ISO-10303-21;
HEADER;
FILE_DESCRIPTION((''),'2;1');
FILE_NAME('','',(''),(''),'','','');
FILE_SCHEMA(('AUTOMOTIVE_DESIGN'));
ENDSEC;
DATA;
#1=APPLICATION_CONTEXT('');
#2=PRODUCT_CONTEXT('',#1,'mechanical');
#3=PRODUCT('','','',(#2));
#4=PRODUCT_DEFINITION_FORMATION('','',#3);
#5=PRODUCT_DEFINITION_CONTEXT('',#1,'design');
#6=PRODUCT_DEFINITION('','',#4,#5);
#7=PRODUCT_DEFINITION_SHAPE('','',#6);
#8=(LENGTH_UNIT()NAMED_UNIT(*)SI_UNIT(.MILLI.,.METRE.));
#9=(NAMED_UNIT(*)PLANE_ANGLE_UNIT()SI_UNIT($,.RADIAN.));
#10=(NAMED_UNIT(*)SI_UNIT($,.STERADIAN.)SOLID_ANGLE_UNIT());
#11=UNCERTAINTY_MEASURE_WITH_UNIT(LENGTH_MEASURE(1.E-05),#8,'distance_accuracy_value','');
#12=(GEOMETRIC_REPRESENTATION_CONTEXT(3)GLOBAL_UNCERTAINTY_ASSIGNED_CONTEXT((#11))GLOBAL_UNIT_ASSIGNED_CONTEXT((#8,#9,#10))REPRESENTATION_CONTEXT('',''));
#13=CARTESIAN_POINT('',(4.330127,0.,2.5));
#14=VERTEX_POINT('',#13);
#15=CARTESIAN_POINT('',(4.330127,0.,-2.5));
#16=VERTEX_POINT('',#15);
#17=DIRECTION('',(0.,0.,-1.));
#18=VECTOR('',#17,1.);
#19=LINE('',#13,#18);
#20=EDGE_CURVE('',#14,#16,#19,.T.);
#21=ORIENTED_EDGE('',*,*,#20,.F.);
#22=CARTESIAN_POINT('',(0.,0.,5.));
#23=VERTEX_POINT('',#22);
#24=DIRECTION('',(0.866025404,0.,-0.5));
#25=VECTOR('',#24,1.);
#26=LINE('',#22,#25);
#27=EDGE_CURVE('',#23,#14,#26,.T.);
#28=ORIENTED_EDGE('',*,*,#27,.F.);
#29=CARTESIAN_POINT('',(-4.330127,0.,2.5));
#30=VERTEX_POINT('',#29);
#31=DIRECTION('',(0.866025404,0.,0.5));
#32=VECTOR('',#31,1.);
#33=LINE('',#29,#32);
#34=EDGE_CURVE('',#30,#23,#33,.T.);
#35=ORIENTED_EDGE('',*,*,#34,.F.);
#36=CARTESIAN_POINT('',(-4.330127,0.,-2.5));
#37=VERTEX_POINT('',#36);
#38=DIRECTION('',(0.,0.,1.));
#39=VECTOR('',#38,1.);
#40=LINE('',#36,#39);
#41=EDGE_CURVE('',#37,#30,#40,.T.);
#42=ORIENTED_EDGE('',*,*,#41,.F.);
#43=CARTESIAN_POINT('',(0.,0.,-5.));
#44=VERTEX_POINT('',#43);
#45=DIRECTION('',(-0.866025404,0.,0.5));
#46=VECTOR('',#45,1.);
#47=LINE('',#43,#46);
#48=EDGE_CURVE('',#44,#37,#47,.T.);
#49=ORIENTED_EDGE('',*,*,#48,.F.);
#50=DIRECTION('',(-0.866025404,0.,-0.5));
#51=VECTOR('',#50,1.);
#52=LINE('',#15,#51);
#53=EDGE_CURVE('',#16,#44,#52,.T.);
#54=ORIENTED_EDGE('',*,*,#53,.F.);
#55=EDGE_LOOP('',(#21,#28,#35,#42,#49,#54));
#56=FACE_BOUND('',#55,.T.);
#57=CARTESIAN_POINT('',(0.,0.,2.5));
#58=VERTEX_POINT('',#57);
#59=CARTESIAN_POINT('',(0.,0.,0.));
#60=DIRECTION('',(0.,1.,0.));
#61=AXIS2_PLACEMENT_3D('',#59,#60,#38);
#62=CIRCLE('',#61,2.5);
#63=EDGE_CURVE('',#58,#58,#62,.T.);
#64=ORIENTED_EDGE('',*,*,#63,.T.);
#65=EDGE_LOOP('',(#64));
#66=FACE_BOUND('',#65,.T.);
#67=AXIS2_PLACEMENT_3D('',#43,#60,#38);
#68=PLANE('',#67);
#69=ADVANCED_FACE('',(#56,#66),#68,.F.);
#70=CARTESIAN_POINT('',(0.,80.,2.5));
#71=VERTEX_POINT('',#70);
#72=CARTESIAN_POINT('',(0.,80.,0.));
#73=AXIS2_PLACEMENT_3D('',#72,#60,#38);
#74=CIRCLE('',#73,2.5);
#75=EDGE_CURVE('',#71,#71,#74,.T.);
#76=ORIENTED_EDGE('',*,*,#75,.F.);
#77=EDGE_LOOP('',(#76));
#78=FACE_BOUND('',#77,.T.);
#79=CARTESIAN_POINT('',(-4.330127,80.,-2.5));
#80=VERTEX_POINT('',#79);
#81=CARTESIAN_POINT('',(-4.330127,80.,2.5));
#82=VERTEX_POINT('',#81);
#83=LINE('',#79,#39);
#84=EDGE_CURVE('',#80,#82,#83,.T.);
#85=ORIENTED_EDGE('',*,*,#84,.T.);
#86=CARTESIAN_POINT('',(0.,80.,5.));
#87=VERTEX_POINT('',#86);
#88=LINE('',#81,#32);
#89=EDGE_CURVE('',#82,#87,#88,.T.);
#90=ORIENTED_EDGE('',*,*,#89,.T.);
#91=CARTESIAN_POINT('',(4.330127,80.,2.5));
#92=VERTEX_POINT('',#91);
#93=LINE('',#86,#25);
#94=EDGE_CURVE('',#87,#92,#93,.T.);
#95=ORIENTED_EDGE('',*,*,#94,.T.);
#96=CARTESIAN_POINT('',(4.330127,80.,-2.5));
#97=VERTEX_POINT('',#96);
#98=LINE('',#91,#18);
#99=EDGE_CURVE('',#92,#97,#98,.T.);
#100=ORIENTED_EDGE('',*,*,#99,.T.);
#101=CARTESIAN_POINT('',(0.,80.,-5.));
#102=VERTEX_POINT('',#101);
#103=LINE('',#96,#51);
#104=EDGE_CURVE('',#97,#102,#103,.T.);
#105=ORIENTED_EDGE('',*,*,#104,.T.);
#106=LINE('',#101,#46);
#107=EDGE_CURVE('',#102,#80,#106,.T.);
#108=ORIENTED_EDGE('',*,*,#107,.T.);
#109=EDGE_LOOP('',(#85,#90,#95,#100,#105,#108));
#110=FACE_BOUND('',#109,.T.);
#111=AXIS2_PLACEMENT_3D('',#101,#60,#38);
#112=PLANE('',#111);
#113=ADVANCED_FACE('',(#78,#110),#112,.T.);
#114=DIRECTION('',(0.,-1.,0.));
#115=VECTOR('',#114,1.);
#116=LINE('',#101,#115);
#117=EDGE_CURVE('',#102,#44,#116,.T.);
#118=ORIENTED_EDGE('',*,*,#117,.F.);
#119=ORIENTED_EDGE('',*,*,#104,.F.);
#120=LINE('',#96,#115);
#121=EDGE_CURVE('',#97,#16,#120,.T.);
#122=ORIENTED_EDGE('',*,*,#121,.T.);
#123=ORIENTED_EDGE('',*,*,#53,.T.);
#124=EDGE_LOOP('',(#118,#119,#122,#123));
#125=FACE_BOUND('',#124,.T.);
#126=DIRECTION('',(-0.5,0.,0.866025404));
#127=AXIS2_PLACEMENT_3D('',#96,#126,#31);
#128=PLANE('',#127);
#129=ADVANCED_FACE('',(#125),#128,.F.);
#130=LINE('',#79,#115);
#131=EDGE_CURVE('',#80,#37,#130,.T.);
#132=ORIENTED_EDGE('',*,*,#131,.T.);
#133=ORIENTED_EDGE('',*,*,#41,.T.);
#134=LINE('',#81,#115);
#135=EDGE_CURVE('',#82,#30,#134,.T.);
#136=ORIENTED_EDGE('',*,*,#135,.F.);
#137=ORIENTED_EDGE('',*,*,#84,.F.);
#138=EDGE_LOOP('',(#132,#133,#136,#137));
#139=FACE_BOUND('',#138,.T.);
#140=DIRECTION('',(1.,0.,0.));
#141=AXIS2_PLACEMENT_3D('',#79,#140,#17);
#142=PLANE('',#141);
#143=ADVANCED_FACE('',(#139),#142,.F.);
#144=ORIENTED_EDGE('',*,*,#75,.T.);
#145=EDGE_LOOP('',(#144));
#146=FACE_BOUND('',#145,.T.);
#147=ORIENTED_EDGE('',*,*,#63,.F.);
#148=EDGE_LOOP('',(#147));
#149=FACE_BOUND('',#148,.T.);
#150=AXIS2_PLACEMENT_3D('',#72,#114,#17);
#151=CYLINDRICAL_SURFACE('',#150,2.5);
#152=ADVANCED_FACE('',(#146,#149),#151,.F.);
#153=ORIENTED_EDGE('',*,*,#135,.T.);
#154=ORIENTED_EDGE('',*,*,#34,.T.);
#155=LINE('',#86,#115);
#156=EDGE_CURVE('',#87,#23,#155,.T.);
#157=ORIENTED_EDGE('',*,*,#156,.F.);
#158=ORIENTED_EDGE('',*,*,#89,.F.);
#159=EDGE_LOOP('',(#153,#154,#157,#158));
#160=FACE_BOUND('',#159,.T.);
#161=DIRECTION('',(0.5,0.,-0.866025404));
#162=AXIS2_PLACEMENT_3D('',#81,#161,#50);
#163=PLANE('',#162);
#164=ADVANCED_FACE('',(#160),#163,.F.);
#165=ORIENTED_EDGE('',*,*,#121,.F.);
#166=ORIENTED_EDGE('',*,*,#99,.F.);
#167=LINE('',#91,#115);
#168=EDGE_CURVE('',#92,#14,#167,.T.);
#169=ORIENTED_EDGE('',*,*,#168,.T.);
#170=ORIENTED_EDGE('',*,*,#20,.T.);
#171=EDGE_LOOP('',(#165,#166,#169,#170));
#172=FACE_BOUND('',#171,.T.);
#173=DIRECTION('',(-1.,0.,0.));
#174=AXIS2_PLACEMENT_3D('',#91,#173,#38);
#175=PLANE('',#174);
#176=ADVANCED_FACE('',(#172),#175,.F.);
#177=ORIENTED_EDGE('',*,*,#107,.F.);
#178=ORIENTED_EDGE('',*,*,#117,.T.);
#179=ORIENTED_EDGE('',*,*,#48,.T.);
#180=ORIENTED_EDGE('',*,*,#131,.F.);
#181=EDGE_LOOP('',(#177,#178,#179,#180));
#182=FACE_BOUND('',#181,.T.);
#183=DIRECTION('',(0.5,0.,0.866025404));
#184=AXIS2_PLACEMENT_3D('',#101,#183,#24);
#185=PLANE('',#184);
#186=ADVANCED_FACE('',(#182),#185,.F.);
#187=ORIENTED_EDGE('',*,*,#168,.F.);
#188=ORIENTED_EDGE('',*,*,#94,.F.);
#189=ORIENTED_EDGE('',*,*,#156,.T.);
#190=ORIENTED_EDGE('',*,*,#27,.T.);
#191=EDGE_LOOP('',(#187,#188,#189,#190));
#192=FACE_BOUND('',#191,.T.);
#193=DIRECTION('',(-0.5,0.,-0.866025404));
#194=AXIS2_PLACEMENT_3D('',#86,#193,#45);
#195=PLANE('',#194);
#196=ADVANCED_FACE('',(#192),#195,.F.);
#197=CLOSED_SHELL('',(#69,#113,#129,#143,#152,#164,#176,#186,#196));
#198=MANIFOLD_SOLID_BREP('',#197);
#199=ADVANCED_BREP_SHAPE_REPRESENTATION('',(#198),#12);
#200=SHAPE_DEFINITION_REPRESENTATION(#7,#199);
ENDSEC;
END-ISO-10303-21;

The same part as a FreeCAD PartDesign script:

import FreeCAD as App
import Part
import Sketcher
Q = App.Units.Quantity

doc = App.newDocument("Part")
body = doc.addObject("PartDesign::Body", "Body")

sketch1 = body.newObject("Sketcher::SketchObject", "Sketch")
sketch1.AttachmentSupport = (doc.getObject("XZ_Plane"), [""])
sketch1.MapMode = "FlatFace"
sketch1.addGeometry(Part.LineSegment(App.Vector(0, -5, 0), App.Vector(-4.3, -2.5, 0)), False)
sketch1.addGeometry(Part.LineSegment(App.Vector(-4.3, -2.5, 0), App.Vector(-4.3, 2.5, 0)), False)
sketch1.addGeometry(Part.LineSegment(App.Vector(-4.3, 2.5, 0), App.Vector(0, 5, 0)), False)
sketch1.addGeometry(Part.LineSegment(App.Vector(0, 5, 0), App.Vector(4.3, 2.5, 0)), False)
sketch1.addGeometry(Part.LineSegment(App.Vector(4.3, 2.5, 0), App.Vector(4.3, -2.5, 0)), False)
sketch1.addGeometry(Part.LineSegment(App.Vector(4.3, -2.5, 0), App.Vector(0, -5, 0)), False)
sketch1.addGeometry(Part.Circle(App.Vector(0, 0, 0), App.Vector(0, 0, 1), 2.5), False)
sketch1.addConstraint(Sketcher.Constraint("Coincident", 0, 2, 1, 1))
sketch1.addConstraint(Sketcher.Constraint("Coincident", 1, 2, 2, 1))
sketch1.addConstraint(Sketcher.Constraint("Coincident", 2, 2, 3, 1))
sketch1.addConstraint(Sketcher.Constraint("Coincident", 3, 2, 4, 1))
sketch1.addConstraint(Sketcher.Constraint("Coincident", 4, 2, 5, 1))
sketch1.addConstraint(Sketcher.Constraint("Coincident", 5, 2, 0, 1))
sketch1.addConstraint(Sketcher.Constraint("Vertical", 1))
sketch1.addConstraint(Sketcher.Constraint("Vertical", 4))
sketch1.addConstraint(Sketcher.Constraint("Coincident", 6, 3, -1, 1))
sketch1.addConstraint(Sketcher.Constraint("Symmetric", 0, 2, 3, 2, -1, 1))
sketch1.addConstraint(Sketcher.Constraint("Symmetric", 2, 2, 5, 2, -1, 1))
sketch1.addConstraint(Sketcher.Constraint("PointOnObject", 2, 2, -2))
sketch1.addConstraint(Sketcher.Constraint("Parallel", 2, 5))
sketch1.addConstraint(Sketcher.Constraint("Horizontal", 1, 2, 3, 2))
sketch1.addConstraint(Sketcher.Constraint("Diameter", 6, Q("5 mm")))
sketch1.addConstraint(Sketcher.Constraint("DistanceY", 1, 1, 1, 2, Q("5 mm")))
sketch1.addConstraint(Sketcher.Constraint("Angle", 0, Q("150 deg")))
sketch1.addConstraint(Sketcher.Constraint("Distance", 0, Q("5 mm")))
pad1 = body.newObject("PartDesign::Pad", "Pad")
pad1.Profile = sketch1
pad1.Length = 80
pad1.Reversed = True

doc.recompute()
